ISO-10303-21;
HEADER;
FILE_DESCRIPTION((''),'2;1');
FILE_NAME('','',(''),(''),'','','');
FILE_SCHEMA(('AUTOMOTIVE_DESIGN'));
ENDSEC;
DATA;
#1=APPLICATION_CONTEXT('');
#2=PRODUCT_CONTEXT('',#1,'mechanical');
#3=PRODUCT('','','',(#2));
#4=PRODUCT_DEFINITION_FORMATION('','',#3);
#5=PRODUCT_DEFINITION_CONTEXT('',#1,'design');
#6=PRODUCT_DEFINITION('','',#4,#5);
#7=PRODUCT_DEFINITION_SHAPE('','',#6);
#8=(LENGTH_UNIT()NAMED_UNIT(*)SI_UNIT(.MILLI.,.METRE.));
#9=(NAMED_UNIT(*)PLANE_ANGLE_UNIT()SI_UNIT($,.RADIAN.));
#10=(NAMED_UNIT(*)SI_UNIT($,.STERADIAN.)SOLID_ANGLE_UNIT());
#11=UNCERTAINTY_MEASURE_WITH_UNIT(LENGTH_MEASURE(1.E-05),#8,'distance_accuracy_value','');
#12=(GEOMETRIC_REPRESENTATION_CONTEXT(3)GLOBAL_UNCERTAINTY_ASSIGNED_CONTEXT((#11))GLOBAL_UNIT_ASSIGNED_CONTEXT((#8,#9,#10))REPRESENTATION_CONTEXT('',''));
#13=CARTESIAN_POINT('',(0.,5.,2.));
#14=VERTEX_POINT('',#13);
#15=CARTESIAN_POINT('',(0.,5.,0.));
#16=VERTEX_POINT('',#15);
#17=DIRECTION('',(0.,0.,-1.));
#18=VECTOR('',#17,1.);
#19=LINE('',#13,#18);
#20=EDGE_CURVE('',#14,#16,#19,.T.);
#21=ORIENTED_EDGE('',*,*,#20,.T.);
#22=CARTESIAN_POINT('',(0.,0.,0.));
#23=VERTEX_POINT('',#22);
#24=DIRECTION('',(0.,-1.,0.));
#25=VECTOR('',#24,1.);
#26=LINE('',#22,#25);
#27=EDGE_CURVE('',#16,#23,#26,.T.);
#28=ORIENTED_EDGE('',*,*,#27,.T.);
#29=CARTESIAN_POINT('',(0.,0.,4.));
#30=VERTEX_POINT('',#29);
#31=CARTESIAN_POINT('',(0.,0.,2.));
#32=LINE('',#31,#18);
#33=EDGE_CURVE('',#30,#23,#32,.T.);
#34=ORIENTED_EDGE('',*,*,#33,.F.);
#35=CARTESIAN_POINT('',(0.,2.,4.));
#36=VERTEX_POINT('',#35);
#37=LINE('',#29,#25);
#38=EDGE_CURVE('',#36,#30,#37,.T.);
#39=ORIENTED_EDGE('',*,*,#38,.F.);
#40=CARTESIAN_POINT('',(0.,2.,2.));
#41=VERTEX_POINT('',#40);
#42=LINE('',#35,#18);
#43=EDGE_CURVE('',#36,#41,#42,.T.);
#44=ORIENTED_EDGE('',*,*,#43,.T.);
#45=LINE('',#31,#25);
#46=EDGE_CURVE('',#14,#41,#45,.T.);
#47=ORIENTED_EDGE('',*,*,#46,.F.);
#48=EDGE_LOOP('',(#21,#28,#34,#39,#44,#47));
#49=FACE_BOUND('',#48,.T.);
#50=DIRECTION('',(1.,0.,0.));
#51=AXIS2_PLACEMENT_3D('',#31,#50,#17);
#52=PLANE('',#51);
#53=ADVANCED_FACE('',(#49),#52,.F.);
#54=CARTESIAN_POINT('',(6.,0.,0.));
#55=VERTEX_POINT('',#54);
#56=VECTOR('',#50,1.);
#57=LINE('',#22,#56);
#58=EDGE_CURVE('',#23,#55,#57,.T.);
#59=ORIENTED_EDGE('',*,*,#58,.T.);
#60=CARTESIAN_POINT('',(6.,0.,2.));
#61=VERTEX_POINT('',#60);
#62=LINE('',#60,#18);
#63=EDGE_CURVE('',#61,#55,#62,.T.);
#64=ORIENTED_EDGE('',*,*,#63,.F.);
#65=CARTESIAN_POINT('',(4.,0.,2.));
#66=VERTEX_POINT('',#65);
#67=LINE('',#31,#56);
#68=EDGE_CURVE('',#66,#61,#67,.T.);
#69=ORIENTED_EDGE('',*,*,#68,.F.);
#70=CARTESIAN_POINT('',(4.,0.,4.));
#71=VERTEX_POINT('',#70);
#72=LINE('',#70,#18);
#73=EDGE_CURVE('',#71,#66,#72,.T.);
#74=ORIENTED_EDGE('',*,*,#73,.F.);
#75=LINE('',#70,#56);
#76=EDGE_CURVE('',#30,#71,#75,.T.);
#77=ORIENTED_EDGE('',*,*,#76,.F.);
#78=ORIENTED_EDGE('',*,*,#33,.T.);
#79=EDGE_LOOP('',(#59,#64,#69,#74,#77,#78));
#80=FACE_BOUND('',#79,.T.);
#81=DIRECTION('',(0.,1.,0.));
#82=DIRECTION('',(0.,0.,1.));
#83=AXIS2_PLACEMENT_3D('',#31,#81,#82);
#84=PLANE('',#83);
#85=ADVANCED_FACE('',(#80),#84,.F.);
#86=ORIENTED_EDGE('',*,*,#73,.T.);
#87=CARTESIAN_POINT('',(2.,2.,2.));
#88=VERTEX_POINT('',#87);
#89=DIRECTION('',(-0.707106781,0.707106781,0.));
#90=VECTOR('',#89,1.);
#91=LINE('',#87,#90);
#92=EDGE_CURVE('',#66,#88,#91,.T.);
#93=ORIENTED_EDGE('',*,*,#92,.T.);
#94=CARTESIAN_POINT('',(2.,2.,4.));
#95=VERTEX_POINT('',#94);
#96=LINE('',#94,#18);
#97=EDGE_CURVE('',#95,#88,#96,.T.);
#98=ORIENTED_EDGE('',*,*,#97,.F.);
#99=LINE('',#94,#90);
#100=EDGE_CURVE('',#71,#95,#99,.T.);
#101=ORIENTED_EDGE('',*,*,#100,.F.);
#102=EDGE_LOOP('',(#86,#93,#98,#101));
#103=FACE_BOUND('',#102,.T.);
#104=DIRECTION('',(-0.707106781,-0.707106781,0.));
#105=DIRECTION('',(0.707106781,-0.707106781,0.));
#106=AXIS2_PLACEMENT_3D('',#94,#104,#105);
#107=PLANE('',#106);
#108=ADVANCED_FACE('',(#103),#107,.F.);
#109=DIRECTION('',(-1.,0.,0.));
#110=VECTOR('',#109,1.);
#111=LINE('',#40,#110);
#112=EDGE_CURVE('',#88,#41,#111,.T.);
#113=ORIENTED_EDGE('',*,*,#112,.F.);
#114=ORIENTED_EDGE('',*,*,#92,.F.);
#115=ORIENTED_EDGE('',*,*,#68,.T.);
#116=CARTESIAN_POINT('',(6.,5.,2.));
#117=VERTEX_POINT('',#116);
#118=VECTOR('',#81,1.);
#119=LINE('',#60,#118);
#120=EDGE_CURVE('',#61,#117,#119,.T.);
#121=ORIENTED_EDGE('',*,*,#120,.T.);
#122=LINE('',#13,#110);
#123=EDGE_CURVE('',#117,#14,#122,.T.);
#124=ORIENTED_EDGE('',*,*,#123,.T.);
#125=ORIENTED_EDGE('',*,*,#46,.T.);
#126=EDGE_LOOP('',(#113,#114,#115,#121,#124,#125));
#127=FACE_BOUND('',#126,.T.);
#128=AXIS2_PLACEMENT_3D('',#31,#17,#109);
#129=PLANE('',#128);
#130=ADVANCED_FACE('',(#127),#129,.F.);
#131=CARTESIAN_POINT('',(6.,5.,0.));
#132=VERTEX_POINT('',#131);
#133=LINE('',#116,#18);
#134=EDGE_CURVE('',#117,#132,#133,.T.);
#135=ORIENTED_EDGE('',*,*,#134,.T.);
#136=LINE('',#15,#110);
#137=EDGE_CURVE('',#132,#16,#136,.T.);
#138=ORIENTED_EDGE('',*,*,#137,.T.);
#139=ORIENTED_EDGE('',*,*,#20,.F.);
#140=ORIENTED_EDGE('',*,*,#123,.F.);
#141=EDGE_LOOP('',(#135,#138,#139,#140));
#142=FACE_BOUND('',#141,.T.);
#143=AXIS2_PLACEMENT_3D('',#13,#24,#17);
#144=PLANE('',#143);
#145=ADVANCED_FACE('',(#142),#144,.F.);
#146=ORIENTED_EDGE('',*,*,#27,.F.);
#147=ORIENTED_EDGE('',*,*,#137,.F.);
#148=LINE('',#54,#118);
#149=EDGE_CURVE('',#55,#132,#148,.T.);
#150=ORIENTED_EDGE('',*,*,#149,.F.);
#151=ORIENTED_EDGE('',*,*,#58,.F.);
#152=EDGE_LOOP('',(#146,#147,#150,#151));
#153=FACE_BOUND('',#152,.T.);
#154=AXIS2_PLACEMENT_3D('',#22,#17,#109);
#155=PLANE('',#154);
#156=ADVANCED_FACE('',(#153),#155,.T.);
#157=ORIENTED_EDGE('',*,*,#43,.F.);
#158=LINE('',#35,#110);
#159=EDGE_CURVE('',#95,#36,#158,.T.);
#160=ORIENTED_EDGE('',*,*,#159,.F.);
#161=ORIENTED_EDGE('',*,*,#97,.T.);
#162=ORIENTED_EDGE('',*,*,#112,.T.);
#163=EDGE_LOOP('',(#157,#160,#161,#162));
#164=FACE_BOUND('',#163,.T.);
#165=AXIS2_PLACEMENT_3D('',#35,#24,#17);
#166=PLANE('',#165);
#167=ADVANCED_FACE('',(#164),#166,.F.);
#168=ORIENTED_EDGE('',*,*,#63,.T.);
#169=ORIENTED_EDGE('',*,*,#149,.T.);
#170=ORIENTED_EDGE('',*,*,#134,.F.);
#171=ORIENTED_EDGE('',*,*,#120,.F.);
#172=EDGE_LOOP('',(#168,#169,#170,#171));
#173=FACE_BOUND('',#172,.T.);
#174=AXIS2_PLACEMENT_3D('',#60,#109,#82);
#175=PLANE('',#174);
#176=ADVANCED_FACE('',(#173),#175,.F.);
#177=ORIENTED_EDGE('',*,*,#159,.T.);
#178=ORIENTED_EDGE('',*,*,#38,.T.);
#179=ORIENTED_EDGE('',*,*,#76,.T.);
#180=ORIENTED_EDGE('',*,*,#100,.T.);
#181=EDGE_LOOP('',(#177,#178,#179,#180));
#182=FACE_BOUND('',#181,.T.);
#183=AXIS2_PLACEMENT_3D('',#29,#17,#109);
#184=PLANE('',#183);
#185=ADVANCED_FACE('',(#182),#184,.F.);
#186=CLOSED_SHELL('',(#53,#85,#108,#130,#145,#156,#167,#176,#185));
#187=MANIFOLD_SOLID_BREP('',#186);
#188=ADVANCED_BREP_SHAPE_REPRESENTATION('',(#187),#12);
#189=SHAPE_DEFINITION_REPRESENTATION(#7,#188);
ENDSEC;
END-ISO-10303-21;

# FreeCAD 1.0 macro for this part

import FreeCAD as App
import Part
import Sketcher
from FreeCAD import Vector


def add_polygon(sketch, points):
    """Adds a closed chain of lines whose ends are joined by coincident constraints."""
    first, n = sketch.GeometryCount, len(points)
    for a, b in zip(points, points[1:] + points[:1]):
        sketch.addGeometry(Part.LineSegment(App.Vector(*a, 0), App.Vector(*b, 0)), False)
    for i in range(n):
        sketch.addConstraint(Sketcher.Constraint("Coincident", first + i, 2, first + (i + 1) % n, 1))

doc = App.newDocument("Part")
body = doc.addObject("PartDesign::Body", "Body")

# Sketch on XY plane
sketch1 = body.newObject("Sketcher::SketchObject", "Sketch")
sketch1.AttachmentSupport = (doc.getObject("XY_Plane"), [""])
sketch1.MapMode = "FlatFace"
add_polygon(sketch1, [(0, 5), (0, 0), (6, 0), (6, 5)])  # lines 0-3
sketch1.addConstraint([
    Sketcher.Constraint("Vertical", 0),
    Sketcher.Constraint("Horizontal", 1),
    Sketcher.Constraint("Vertical", 2),
    Sketcher.Constraint("Horizontal", 3),
    Sketcher.Constraint("Coincident", 0, 2, -1, 1),
    Sketcher.Constraint("DistanceX", 1, 1, 1, 2, 6.0),
    Sketcher.Constraint("DistanceY", 0, 2, 0, 1, 5.0),
])
pad1 = body.newObject("PartDesign::Pad", "Pad")
pad1.Profile = sketch1
pad1.Length = 2

# Sketch on XY plane
sketch2 = body.newObject("Sketcher::SketchObject", "Sketch001")
sketch2.AttachmentSupport = (doc.getObject("XY_Plane"), [""])
sketch2.MapMode = "FlatFace"
sketch2.AttachmentOffset = App.Placement(Vector(0, 0, 2), App.Rotation())
add_polygon(sketch2, [(0, 2), (0, 0), (4, 0), (2, 2)])  # lines 0-3
sketch2.addConstraint([
    Sketcher.Constraint("Vertical", 0),
    Sketcher.Constraint("Horizontal", 1),
    Sketcher.Constraint("Horizontal", 3),
    Sketcher.Constraint("Coincident", 0, 2, -1, 1),
    Sketcher.Constraint("Equal", 3, 0),
    Sketcher.Constraint("DistanceX", 1, 1, 1, 2, 4.0),
    Sketcher.Constraint("DistanceX", 3, 2, 3, 1, 2.0),
])
pad2 = body.newObject("PartDesign::Pad", "Pad001")
pad2.Profile = sketch2
pad2.Length = 2

doc.recompute()
